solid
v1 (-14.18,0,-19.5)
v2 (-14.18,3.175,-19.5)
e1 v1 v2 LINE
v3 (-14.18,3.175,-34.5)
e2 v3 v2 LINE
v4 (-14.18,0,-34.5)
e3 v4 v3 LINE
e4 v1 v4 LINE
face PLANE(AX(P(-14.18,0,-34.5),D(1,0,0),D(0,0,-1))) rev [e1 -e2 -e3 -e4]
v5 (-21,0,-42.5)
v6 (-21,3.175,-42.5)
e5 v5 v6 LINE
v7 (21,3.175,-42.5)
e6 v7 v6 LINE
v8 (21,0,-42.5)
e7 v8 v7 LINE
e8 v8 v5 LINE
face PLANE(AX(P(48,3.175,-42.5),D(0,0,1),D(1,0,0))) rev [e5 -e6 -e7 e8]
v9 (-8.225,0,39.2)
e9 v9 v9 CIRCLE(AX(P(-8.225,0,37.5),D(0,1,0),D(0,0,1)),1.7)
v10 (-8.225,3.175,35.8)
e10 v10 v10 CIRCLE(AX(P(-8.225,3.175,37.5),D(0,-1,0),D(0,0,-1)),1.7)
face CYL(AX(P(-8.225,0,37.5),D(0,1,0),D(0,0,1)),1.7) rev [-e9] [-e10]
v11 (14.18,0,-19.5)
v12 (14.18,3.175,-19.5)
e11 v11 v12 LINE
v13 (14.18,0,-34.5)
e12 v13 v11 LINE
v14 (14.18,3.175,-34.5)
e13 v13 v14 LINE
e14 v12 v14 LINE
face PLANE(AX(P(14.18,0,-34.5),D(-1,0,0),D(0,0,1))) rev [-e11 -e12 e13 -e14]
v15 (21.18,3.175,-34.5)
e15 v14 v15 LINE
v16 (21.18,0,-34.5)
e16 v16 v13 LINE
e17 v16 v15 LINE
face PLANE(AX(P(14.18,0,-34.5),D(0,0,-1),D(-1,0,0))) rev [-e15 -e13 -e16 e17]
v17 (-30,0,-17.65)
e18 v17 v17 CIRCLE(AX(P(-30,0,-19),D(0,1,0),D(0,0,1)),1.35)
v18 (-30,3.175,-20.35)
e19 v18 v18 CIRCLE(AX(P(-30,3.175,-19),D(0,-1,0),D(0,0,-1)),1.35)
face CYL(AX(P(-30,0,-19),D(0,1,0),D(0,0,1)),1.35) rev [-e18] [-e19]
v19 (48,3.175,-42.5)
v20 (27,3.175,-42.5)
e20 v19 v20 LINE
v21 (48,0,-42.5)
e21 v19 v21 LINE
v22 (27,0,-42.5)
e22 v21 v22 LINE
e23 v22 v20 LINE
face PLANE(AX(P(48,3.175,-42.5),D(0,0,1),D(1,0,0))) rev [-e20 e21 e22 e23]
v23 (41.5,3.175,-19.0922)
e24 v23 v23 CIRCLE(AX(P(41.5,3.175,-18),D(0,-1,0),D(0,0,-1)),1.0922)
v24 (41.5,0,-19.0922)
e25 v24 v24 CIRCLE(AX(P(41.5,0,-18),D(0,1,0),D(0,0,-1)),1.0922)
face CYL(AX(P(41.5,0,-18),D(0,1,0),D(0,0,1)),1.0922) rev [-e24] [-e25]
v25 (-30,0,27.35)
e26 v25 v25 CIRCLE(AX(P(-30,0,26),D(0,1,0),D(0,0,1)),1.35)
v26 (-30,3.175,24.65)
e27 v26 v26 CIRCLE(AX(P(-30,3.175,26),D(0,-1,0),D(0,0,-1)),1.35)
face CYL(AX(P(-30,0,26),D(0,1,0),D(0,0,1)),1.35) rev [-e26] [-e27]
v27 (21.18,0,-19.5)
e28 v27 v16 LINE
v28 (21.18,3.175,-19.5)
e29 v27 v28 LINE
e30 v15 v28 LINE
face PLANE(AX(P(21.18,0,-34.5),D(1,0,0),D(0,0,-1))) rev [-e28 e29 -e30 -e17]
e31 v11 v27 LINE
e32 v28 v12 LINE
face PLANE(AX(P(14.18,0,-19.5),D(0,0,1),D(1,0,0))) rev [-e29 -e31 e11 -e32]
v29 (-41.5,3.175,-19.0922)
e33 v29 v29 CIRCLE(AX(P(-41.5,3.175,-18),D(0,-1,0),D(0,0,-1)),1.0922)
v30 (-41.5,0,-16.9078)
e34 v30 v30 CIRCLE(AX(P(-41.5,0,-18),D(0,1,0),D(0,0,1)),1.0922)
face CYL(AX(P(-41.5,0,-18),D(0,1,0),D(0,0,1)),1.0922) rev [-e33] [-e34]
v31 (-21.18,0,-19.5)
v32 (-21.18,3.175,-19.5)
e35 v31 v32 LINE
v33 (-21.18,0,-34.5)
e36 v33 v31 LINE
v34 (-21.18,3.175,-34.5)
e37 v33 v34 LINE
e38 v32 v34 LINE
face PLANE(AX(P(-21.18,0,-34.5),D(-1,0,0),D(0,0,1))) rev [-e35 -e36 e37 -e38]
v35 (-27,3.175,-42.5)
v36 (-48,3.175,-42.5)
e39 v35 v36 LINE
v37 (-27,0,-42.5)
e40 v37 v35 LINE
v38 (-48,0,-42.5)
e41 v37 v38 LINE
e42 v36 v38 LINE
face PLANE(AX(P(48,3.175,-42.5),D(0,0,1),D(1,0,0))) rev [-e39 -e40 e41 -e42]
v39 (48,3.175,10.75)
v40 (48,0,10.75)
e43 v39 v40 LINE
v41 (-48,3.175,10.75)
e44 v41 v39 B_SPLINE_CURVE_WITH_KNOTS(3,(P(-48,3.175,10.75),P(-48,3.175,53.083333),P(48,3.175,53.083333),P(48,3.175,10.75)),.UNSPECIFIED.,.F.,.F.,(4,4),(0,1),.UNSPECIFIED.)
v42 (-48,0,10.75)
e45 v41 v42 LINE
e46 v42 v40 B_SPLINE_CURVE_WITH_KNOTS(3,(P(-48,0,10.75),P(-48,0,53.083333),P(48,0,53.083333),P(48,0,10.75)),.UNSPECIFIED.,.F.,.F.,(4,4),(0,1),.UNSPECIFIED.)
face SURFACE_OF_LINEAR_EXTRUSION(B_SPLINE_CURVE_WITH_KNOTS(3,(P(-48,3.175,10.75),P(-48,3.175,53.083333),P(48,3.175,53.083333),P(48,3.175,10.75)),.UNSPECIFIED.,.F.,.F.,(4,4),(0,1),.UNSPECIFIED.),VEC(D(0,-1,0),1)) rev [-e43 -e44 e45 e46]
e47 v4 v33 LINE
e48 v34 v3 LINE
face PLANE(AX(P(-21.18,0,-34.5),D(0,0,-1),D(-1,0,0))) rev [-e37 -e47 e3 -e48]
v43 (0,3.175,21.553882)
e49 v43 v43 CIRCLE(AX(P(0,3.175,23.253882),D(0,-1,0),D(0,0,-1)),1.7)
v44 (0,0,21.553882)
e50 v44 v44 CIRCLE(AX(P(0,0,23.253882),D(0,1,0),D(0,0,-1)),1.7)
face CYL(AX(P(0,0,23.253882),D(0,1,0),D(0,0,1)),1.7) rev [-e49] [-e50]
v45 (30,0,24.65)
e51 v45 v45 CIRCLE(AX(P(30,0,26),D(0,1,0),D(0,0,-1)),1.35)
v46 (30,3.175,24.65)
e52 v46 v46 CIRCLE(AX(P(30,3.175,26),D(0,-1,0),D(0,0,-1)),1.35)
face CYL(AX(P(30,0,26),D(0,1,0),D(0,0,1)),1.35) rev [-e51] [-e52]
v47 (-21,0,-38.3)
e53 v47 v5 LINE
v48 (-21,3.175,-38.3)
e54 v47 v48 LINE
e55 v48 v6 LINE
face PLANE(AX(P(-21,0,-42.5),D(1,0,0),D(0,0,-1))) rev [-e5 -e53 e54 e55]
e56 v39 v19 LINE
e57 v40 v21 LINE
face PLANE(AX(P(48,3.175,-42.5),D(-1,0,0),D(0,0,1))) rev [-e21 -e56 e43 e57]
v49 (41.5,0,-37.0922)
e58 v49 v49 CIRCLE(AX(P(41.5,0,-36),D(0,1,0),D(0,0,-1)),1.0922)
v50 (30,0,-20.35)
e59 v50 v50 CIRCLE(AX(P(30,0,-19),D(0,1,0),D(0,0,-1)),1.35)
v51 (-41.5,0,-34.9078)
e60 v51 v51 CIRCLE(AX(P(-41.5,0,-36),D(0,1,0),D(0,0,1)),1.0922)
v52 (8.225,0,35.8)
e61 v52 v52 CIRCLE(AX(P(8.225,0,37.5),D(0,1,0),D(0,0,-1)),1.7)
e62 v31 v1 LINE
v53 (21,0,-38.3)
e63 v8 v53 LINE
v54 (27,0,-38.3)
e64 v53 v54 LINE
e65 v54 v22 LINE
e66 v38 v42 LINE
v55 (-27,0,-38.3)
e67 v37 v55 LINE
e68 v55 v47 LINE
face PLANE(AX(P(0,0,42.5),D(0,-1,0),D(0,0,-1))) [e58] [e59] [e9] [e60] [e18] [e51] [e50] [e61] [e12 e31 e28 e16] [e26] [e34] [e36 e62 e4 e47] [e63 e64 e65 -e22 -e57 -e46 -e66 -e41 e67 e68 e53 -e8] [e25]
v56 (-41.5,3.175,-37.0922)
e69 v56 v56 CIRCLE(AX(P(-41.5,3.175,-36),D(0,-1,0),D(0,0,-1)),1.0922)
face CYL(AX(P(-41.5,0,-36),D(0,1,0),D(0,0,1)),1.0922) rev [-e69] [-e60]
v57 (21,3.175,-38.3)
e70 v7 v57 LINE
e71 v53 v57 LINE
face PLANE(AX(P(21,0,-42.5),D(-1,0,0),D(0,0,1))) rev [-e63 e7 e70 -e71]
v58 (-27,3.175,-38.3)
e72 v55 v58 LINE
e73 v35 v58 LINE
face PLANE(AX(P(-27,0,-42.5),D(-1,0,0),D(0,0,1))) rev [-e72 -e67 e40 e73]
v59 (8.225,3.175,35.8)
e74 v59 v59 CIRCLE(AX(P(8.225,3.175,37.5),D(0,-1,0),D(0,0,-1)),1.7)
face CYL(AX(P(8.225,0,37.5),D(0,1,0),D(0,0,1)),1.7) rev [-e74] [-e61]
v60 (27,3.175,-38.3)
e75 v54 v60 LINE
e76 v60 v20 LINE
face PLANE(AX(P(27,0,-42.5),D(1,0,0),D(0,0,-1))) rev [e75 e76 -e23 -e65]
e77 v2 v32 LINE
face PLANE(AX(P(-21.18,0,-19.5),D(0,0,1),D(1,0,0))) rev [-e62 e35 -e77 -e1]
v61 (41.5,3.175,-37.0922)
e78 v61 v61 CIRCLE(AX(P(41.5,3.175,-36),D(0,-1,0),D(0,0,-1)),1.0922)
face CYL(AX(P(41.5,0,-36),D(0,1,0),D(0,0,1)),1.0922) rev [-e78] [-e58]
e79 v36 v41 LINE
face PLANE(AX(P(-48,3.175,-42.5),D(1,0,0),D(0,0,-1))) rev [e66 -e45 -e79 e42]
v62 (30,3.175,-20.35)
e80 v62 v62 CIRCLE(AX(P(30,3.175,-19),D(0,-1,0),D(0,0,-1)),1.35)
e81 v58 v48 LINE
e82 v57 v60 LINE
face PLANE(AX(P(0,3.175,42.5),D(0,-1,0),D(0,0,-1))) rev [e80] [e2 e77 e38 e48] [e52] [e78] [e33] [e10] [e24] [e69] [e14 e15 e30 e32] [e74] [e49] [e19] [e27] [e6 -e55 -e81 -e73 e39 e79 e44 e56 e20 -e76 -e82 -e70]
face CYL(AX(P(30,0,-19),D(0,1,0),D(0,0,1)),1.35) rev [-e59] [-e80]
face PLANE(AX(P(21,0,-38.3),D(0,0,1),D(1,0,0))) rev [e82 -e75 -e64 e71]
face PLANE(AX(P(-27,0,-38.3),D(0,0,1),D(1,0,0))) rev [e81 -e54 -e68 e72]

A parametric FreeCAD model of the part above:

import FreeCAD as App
import Part
import Sketcher
from FreeCAD import Vector

doc = App.newDocument("Part")
body = doc.addObject("PartDesign::Body", "Body")

# Sketch on XZ plane
sketch1 = body.newObject("Sketcher::SketchObject", "Sketch")
sketch1.AttachmentSupport = (doc.getObject("XZ_Plane"), [""])
sketch1.MapMode = "FlatFace"
sketch1.addGeometry([
    Part.LineSegment(Vector(48, -42.5, 0), Vector(-48, -42.5, 0)),
    Part.LineSegment(Vector(-48, -42.5, 0), Vector(-48, 10.75, 0)),
    Part.BSplineCurve([Vector(-48, 10.75, 0), Vector(-48, 53.083333, 0), Vector(48, 53.083333, 0), Vector(48, 10.75, 0)], [4, 4], [0, 1], False, 3, [1, 1, 1, 1], False),
    Part.LineSegment(Vector(48, 10.75, 0), Vector(48, -42.5, 0)),
], False)
sketch1.addConstraint([
    Sketcher.Constraint("Block", 2),
    Sketcher.Constraint("Coincident", 0, 2, 1, 1),
    Sketcher.Constraint("Coincident", 1, 2, 2, 1),
    Sketcher.Constraint("Coincident", 2, 2, 3, 1),
    Sketcher.Constraint("Coincident", 3, 2, 0, 1),
    Sketcher.Constraint("Horizontal", 0),
    Sketcher.Constraint("Vertical", 1),
    Sketcher.Constraint("Vertical", 3),
    Sketcher.Constraint("DistanceY", 1, 1, 1, 2, 53.25),
])
pad1 = body.newObject("PartDesign::Pad", "Pad")
pad1.Profile = sketch1
pad1.Length = 3.175
pad1.Reversed = True

# Sketch on XZ plane
sketch2 = body.newObject("Sketcher::SketchObject", "Sketch001")
sketch2.AttachmentSupport = (doc.getObject("XZ_Plane"), [""])
sketch2.MapMode = "FlatFace"
sketch2.AttachmentOffset = App.Placement(Vector(0, 0, -3.175), App.Rotation())
sketch2.addGeometry([
    Part.Circle(Vector(-41.5, -36, 0), Vector(0, 0, 1), 1.1),  # 0
    Part.Circle(Vector(-41.5, -18, 0), Vector(0, 0, 1), 1.1),  # 1
    Part.Circle(Vector(-30, -19, 0), Vector(0, 0, 1), 1.4),  # 2
    Part.Circle(Vector(41.5, -18, 0), Vector(0, 0, 1), 1.1),  # 3
    Part.Circle(Vector(41.5, -36, 0), Vector(0, 0, 1), 1.1),  # 4
    Part.Circle(Vector(-30, 26, 0), Vector(0, 0, 1), 1.4),  # 5
    Part.Circle(Vector(30, 26, 0), Vector(0, 0, 1), 1.4),  # 6
    Part.Circle(Vector(30, -19, 0), Vector(0, 0, 1), 1.4),  # 7
    Part.Circle(Vector(-8.2, 37.5, 0), Vector(0, 0, 1), 1.7),  # 8
    Part.Circle(Vector(8.2, 37.5, 0), Vector(0, 0, 1), 1.7),  # 9
    Part.Circle(Vector(0, 23.3, 0), Vector(0, 0, 1), 1.7),  # 10
    Part.LineSegment(Vector(-21.2, -34.5, 0), Vector(-21.2, -19.5, 0)),  # 11
    Part.LineSegment(Vector(-21.2, -19.5, 0), Vector(-14.2, -19.5, 0)),  # 12
    Part.LineSegment(Vector(-14.2, -19.5, 0), Vector(-14.2, -34.5, 0)),  # 13
    Part.LineSegment(Vector(-14.2, -34.5, 0), Vector(-21.2, -34.5, 0)),  # 14
    Part.LineSegment(Vector(14.2, -34.5, 0), Vector(14.2, -19.5, 0)),  # 15
    Part.LineSegment(Vector(14.2, -19.5, 0), Vector(21.2, -19.5, 0)),  # 16
    Part.LineSegment(Vector(21.2, -19.5, 0), Vector(21.2, -34.5, 0)),  # 17
    Part.LineSegment(Vector(21.2, -34.5, 0), Vector(14.2, -34.5, 0)),  # 18
], False)
sketch2.addConstraint([
    Sketcher.Constraint("Coincident", 11, 2, 12, 1),
    Sketcher.Constraint("Coincident", 12, 2, 13, 1),
    Sketcher.Constraint("Coincident", 13, 2, 14, 1),
    Sketcher.Constraint("Coincident", 14, 2, 11, 1),
    Sketcher.Constraint("Coincident", 15, 2, 16, 1),
    Sketcher.Constraint("Coincident", 16, 2, 17, 1),
    Sketcher.Constraint("Coincident", 17, 2, 18, 1),
    Sketcher.Constraint("Coincident", 18, 2, 15, 1),
    Sketcher.Constraint("Vertical", 11),
    Sketcher.Constraint("Horizontal", 12),
    Sketcher.Constraint("Vertical", 13),
    Sketcher.Constraint("Horizontal", 14),
    Sketcher.Constraint("Vertical", 15),
    Sketcher.Constraint("Horizontal", 16),
    Sketcher.Constraint("Vertical", 17),
    Sketcher.Constraint("Horizontal", 18),
    Sketcher.Constraint("Equal", 0, 1),
    Sketcher.Constraint("Equal", 1, 3),
    Sketcher.Constraint("Equal", 3, 4),
    Sketcher.Constraint("Equal", 2, 5),
    Sketcher.Constraint("Equal", 5, 6),
    Sketcher.Constraint("Equal", 6, 7),
    Sketcher.Constraint("Equal", 8, 9),
    Sketcher.Constraint("Equal", 9, 10),
    Sketcher.Constraint("Symmetric", 1, 3, 3, 3, -2),
    Sketcher.Constraint("Symmetric", 0, 3, 4, 3, -2),
    Sketcher.Constraint("Symmetric", 5, 3, 6, 3, -2),
    Sketcher.Constraint("Symmetric", 2, 3, 7, 3, -2),
    Sketcher.Constraint("Symmetric", 8, 3, 9, 3, -2),
    Sketcher.Constraint("Symmetric", 12, 2, 15, 2, -2),
    Sketcher.Constraint("Symmetric", 14, 2, 17, 2, -2),
    Sketcher.Constraint("PointOnObject", 10, 3, -2),
    Sketcher.Constraint("Vertical", 0, 3, 1, 3),
    Sketcher.Constraint("Vertical", 2, 3, 5, 3),
    Sketcher.Constraint("Diameter", 2, 2.7),
    Sketcher.Constraint("Diameter", 8, 3.4),
    Sketcher.Constraint("DistanceX", 12, 1, 12, 2, 7.0),
    Sketcher.Constraint("DistanceY", 11, 1, 11, 2, 15.0),
    Sketcher.Constraint("DistanceY", 0, 3, -1, 1, 36.0),
    Sketcher.Constraint("DistanceY", 1, 3, -1, 1, 18.0),
    Sketcher.Constraint("DistanceX", 2, 3, -1, 1, 30.0),
    Sketcher.Constraint("DistanceY", 2, 3, -1, 1, 19.0),
    Sketcher.Constraint("DistanceY", -1, 1, 5, 3, 26.0),
    Sketcher.Constraint("DistanceX", 1, 3, 3, 3, 83.0),
    Sketcher.Constraint("Diameter", 0, 2.1844),
    Sketcher.Constraint("DistanceY", -1, 1, 8, 3, 37.5),
    Sketcher.Constraint("DistanceY", 11, 2, -1, 1, 19.5),
    Sketcher.Constraint("DistanceX", 11, 2, -1, 1, 21.18),
    Sketcher.Constraint("DistanceX", 8, 3, 9, 3, 16.45),
    Sketcher.Constraint("DistanceY", -1, 1, 10, 3, 23.253882),
])
pocket1 = body.newObject("PartDesign::Pocket", "Pocket")
pocket1.Profile = sketch2
pocket1.Type = "ThroughAll"
pocket1.Midplane = True

# Sketch on XZ plane
sketch3 = body.newObject("Sketcher::SketchObject", "Sketch002")
sketch3.AttachmentSupport = (doc.getObject("XZ_Plane"), [""])
sketch3.MapMode = "FlatFace"
sketch3.AttachmentOffset = App.Placement(Vector(0, 0, -3.175), App.Rotation())
sketch3.addGeometry([
    Part.LineSegment(Vector(21, -42.5, 0), Vector(21, -38.3, 0)),  # 0
    Part.LineSegment(Vector(21, -38.3, 0), Vector(27, -38.3, 0)),  # 1
    Part.LineSegment(Vector(27, -38.3, 0), Vector(27, -42.5, 0)),  # 2
    Part.LineSegment(Vector(27, -42.5, 0), Vector(21, -42.5, 0)),  # 3
    Part.LineSegment(Vector(-27, -42.5, 0), Vector(-27, -38.3, 0)),  # 4
    Part.LineSegment(Vector(-27, -38.3, 0), Vector(-21, -38.3, 0)),  # 5
    Part.LineSegment(Vector(-21, -38.3, 0), Vector(-21, -42.5, 0)),  # 6
    Part.LineSegment(Vector(-21, -42.5, 0), Vector(-27, -42.5, 0)),  # 7
], False)
sketch3.addConstraint([
    Sketcher.Constraint("Coincident", 0, 2, 1, 1),
    Sketcher.Constraint("Coincident", 1, 2, 2, 1),
    Sketcher.Constraint("Coincident", 2, 2, 3, 1),
    Sketcher.Constraint("Coincident", 3, 2, 0, 1),
    Sketcher.Constraint("Coincident", 4, 2, 5, 1),
    Sketcher.Constraint("Coincident", 5, 2, 6, 1),
    Sketcher.Constraint("Coincident", 6, 2, 7, 1),
    Sketcher.Constraint("Coincident", 7, 2, 4, 1),
    Sketcher.Constraint("Vertical", 0),
    Sketcher.Constraint("Horizontal", 1),
    Sketcher.Constraint("Vertical", 2),
    Sketcher.Constraint("Horizontal", 3),
    Sketcher.Constraint("Vertical", 4),
    Sketcher.Constraint("Horizontal", 5),
    Sketcher.Constraint("Vertical", 6),
    Sketcher.Constraint("Horizontal", 7),
    Sketcher.Constraint("Symmetric", 1, 2, 4, 2, -2),
    Sketcher.Constraint("Symmetric", 3, 2, 6, 2, -2),
    Sketcher.Constraint("DistanceX", 1, 1, 1, 2, 6.0),
    Sketcher.Constraint("DistanceY", 0, 1, 0, 2, 4.2),
    Sketcher.Constraint("DistanceX", -1, 1, 0, 2, 21.0),
    Sketcher.Constraint("DistanceY", 0, 2, -1, 1, 38.3),
])
pocket2 = body.newObject("PartDesign::Pocket", "Pocket001")
pocket2.Profile = sketch3
pocket2.Type = "ThroughAll"
pocket2.Reversed = True

doc.recompute()
